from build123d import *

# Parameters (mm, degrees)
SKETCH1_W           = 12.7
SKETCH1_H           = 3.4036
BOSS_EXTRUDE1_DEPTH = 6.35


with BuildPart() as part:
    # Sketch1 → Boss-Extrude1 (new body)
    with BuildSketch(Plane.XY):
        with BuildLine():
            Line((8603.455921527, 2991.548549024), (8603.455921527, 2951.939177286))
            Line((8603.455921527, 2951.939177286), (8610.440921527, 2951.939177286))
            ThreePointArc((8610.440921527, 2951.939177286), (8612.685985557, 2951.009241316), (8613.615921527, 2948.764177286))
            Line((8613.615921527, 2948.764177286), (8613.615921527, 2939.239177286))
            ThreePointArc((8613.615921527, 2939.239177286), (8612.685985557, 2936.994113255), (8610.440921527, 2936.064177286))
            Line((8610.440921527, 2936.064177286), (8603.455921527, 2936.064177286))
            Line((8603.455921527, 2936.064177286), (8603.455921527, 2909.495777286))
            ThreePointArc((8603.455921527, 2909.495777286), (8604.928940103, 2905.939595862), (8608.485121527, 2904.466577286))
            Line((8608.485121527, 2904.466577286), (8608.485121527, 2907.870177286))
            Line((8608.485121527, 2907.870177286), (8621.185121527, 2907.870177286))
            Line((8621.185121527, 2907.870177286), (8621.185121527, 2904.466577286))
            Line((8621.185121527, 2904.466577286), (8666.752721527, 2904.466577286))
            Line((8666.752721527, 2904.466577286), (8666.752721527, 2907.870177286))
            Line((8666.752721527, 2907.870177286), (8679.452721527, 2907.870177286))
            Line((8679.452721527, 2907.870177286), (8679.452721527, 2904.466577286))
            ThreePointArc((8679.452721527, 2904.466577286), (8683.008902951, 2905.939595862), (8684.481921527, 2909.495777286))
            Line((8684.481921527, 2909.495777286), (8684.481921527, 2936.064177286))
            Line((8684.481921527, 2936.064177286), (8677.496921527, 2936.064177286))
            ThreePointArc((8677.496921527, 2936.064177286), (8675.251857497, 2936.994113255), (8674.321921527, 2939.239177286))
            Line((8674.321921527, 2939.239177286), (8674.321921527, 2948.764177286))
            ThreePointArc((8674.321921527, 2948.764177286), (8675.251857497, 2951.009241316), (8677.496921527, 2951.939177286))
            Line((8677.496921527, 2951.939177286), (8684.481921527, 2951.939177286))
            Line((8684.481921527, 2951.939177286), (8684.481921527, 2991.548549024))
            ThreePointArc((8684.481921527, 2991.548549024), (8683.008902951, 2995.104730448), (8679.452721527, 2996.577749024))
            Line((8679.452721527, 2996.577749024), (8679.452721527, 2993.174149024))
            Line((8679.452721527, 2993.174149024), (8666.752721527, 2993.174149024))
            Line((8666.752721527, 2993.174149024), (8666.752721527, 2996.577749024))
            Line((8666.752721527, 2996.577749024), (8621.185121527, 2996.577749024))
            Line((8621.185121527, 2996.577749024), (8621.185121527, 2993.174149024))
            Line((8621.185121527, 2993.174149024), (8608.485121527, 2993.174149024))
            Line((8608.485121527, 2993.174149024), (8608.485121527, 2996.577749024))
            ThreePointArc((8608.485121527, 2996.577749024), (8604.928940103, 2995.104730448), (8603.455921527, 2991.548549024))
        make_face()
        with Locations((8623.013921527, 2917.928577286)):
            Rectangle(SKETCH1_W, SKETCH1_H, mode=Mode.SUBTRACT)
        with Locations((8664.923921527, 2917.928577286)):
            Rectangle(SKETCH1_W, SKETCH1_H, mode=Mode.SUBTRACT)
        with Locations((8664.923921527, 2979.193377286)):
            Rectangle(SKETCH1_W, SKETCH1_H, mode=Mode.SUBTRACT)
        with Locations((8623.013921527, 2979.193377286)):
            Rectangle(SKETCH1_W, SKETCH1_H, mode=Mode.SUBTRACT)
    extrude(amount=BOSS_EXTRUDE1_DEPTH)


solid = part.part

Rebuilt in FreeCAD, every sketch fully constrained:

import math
import FreeCAD as App
import Part
import Sketcher

V = App.Vector
Q = App.Units.Quantity


def add_polygon(sketch, points):
    """Adds a closed chain of lines whose ends are joined by coincident constraints."""
    first, n = sketch.GeometryCount, len(points)
    for a, b in zip(points, points[1:] + points[:1]):
        sketch.addGeometry(Part.LineSegment(App.Vector(*a, 0), App.Vector(*b, 0)), False)
    for i in range(n):
        sketch.addConstraint(Sketcher.Constraint("Coincident", first + i, 2, first + (i + 1) % n, 1))

doc = App.newDocument("Part")
body = doc.addObject("PartDesign::Body", "Body")

sketch1 = body.newObject("Sketcher::SketchObject", "Sketch")
sketch1.AttachmentSupport = (doc.getObject("XY_Plane"), [""])
sketch1.MapMode = "FlatFace"
sketch1.addGeometry(Part.LineSegment(V(8603.455922, 2991.548549, 0), V(8603.455922, 2951.939177, 0)), False)
sketch1.addGeometry(Part.LineSegment(V(8603.455922, 2951.939177, 0), V(8610.440922, 2951.939177, 0)), False)
sketch1.addGeometry(Part.ArcOfCircle(Part.Circle(V(8610.440922, 2948.764177, 0), V(0, 0, 1), 3.175), math.radians(0), math.radians(90)), False)
sketch1.addGeometry(Part.LineSegment(V(8613.615922, 2948.764177, 0), V(8613.615922, 2939.239177, 0)), False)
sketch1.addGeometry(Part.ArcOfCircle(Part.Circle(V(8610.440922, 2939.239177, 0), V(0, 0, 1), 3.175), math.radians(-90), math.radians(0)), False)
sketch1.addGeometry(Part.LineSegment(V(8610.440922, 2936.064177, 0), V(8603.455922, 2936.064177, 0)), False)
sketch1.addGeometry(Part.LineSegment(V(8603.455922, 2936.064177, 0), V(8603.455922, 2909.495777, 0)), False)
sketch1.addGeometry(Part.ArcOfCircle(Part.Circle(V(8608.485122, 2909.495777, 0), V(0, 0, 1), 5.0292), math.radians(180), math.radians(270)), False)
sketch1.addGeometry(Part.LineSegment(V(8608.485122, 2904.466577, 0), V(8608.485122, 2907.870177, 0)), False)
sketch1.addGeometry(Part.LineSegment(V(8608.485122, 2907.870177, 0), V(8621.185122, 2907.870177, 0)), False)
sketch1.addGeometry(Part.LineSegment(V(8621.185122, 2907.870177, 0), V(8621.185122, 2904.466577, 0)), False)
sketch1.addGeometry(Part.LineSegment(V(8621.185122, 2904.466577, 0), V(8666.752722, 2904.466577, 0)), False)
sketch1.addGeometry(Part.LineSegment(V(8666.752722, 2904.466577, 0), V(8666.752722, 2907.870177, 0)), False)
sketch1.addGeometry(Part.LineSegment(V(8666.752722, 2907.870177, 0), V(8679.452722, 2907.870177, 0)), False)
sketch1.addGeometry(Part.LineSegment(V(8679.452722, 2907.870177, 0), V(8679.452722, 2904.466577, 0)), False)
sketch1.addGeometry(Part.ArcOfCircle(Part.Circle(V(8679.452722, 2909.495777, 0), V(0, 0, 1), 5.0292), math.radians(-90), math.radians(0)), False)
sketch1.addGeometry(Part.LineSegment(V(8684.481922, 2909.495777, 0), V(8684.481922, 2936.064177, 0)), False)
sketch1.addGeometry(Part.LineSegment(V(8684.481922, 2936.064177, 0), V(8677.496922, 2936.064177, 0)), False)
sketch1.addGeometry(Part.ArcOfCircle(Part.Circle(V(8677.496922, 2939.239177, 0), V(0, 0, 1), 3.175), math.radians(180), math.radians(270)), False)
sketch1.addGeometry(Part.LineSegment(V(8674.321922, 2939.239177, 0), V(8674.321922, 2948.764177, 0)), False)
sketch1.addGeometry(Part.ArcOfCircle(Part.Circle(V(8677.496922, 2948.764177, 0), V(0, 0, 1), 3.175), math.radians(90), math.radians(180)), False)
sketch1.addGeometry(Part.LineSegment(V(8677.496922, 2951.939177, 0), V(8684.481922, 2951.939177, 0)), False)
sketch1.addGeometry(Part.LineSegment(V(8684.481922, 2951.939177, 0), V(8684.481922, 2991.548549, 0)), False)
sketch1.addGeometry(Part.ArcOfCircle(Part.Circle(V(8679.452722, 2991.548549, 0), V(0, 0, 1), 5.0292), math.radians(0), math.radians(90)), False)
sketch1.addGeometry(Part.LineSegment(V(8679.452722, 2996.577749, 0), V(8679.452722, 2993.174149, 0)), False)
sketch1.addGeometry(Part.LineSegment(V(8679.452722, 2993.174149, 0), V(8666.752722, 2993.174149, 0)), False)
sketch1.addGeometry(Part.LineSegment(V(8666.752722, 2993.174149, 0), V(8666.752722, 2996.577749, 0)), False)
sketch1.addGeometry(Part.LineSegment(V(8666.752722, 2996.577749, 0), V(8621.185122, 2996.577749, 0)), False)
sketch1.addGeometry(Part.LineSegment(V(8621.185122, 2996.577749, 0), V(8621.185122, 2993.174149, 0)), False)
sketch1.addGeometry(Part.LineSegment(V(8621.185122, 2993.174149, 0), V(8608.485122, 2993.174149, 0)), False)
sketch1.addGeometry(Part.LineSegment(V(8608.485122, 2993.174149, 0), V(8608.485122, 2996.577749, 0)), False)
sketch1.addGeometry(Part.ArcOfCircle(Part.Circle(V(8608.485122, 2991.548549, 0), V(0, 0, 1), 5.0292), math.radians(90), math.radians(180)), False)
add_polygon(sketch1, [(8629.363922, 2916.226777), (8616.663922, 2916.226777), (8616.663922, 2919.630377), (8629.363922, 2919.630377)])
add_polygon(sketch1, [(8671.273922, 2916.226777), (8658.573922, 2916.226777), (8658.573922, 2919.630377), (8671.273922, 2919.630377)])
add_polygon(sketch1, [(8629.363922, 2977.491577), (8616.663922, 2977.491577), (8616.663922, 2980.895177), (8629.363922, 2980.895177)])
add_polygon(sketch1, [(8671.273922, 2977.491577), (8658.573922, 2977.491577), (8658.573922, 2980.895177), (8671.273922, 2980.895177)])
sketch1.addConstraint([
    Sketcher.Constraint("Coincident", 0, 2, 1, 1),
    Sketcher.Constraint("Tangent", 1, 2, 2, 2),
    Sketcher.Constraint("Tangent", 2, 1, 3, 1),
    Sketcher.Constraint("Tangent", 3, 2, 4, 2),
    Sketcher.Constraint("Tangent", 4, 1, 5, 1),
    Sketcher.Constraint("Coincident", 5, 2, 6, 1),
    Sketcher.Constraint("Tangent", 6, 2, 7, 1),
    Sketcher.Constraint("Coincident", 7, 2, 8, 1),
    Sketcher.Constraint("Coincident", 8, 2, 9, 1),
    Sketcher.Constraint("Coincident", 9, 2, 10, 1),
    Sketcher.Constraint("Coincident", 10, 2, 11, 1),
    Sketcher.Constraint("Coincident", 11, 2, 12, 1),
    Sketcher.Constraint("Coincident", 12, 2, 13, 1),
    Sketcher.Constraint("Coincident", 13, 2, 14, 1),
    Sketcher.Constraint("Coincident", 14, 2, 15, 1),
    Sketcher.Constraint("Tangent", 15, 2, 16, 1),
    Sketcher.Constraint("Coincident", 16, 2, 17, 1),
    Sketcher.Constraint("Tangent", 17, 2, 18, 2),
    Sketcher.Constraint("Tangent", 18, 1, 19, 1),
    Sketcher.Constraint("Tangent", 19, 2, 20, 2),
    Sketcher.Constraint("Tangent", 20, 1, 21, 1),
    Sketcher.Constraint("Coincident", 21, 2, 22, 1),
    Sketcher.Constraint("Tangent", 22, 2, 23, 1),
    Sketcher.Constraint("Coincident", 23, 2, 24, 1),
    Sketcher.Constraint("Coincident", 24, 2, 25, 1),
    Sketcher.Constraint("Coincident", 25, 2, 26, 1),
    Sketcher.Constraint("Coincident", 26, 2, 27, 1),
    Sketcher.Constraint("Coincident", 27, 2, 28, 1),
    Sketcher.Constraint("Coincident", 28, 2, 29, 1),
    Sketcher.Constraint("Coincident", 29, 2, 30, 1),
    Sketcher.Constraint("Coincident", 30, 2, 31, 1),
    Sketcher.Constraint("Tangent", 31, 2, 0, 1),
    Sketcher.Constraint("Vertical", 0),
    Sketcher.Constraint("Horizontal", 1),
    Sketcher.Constraint("Vertical", 3),
    Sketcher.Constraint("Horizontal", 5),
    Sketcher.Constraint("Vertical", 6),
    Sketcher.Constraint("Vertical", 8),
    Sketcher.Constraint("Horizontal", 9),
    Sketcher.Constraint("Vertical", 10),
    Sketcher.Constraint("Horizontal", 11),
    Sketcher.Constraint("Vertical", 12),
    Sketcher.Constraint("Horizontal", 13),
    Sketcher.Constraint("Vertical", 14),
    Sketcher.Constraint("Vertical", 16),
    Sketcher.Constraint("Horizontal", 17),
    Sketcher.Constraint("Vertical", 19),
    Sketcher.Constraint("Horizontal", 21),
    Sketcher.Constraint("Vertical", 22),
    Sketcher.Constraint("Vertical", 24),
    Sketcher.Constraint("Horizontal", 25),
    Sketcher.Constraint("Vertical", 26),
    Sketcher.Constraint("Horizontal", 27),
    Sketcher.Constraint("Vertical", 28),
    Sketcher.Constraint("Horizontal", 29),
    Sketcher.Constraint("Vertical", 30),
    Sketcher.Constraint("Horizontal", 32),
    Sketcher.Constraint("Vertical", 33),
    Sketcher.Constraint("Horizontal", 34),
    Sketcher.Constraint("Vertical", 35),
    Sketcher.Constraint("Horizontal", 36),
    Sketcher.Constraint("Vertical", 37),
    Sketcher.Constraint("Horizontal", 38),
    Sketcher.Constraint("Vertical", 39),
    Sketcher.Constraint("Horizontal", 40),
    Sketcher.Constraint("Vertical", 41),
    Sketcher.Constraint("Horizontal", 42),
    Sketcher.Constraint("Vertical", 43),
    Sketcher.Constraint("Horizontal", 44),
    Sketcher.Constraint("Vertical", 45),
    Sketcher.Constraint("Horizontal", 46),
    Sketcher.Constraint("Vertical", 47),
    Sketcher.Constraint("Equal", 2, 4),
    Sketcher.Constraint("Equal", 7, 15),
    Sketcher.Constraint("Equal", 4, 18),
    Sketcher.Constraint("Equal", 18, 20),
    Sketcher.Constraint("Equal", 15, 23),
    Sketcher.Constraint("Equal", 23, 31),
    Sketcher.Constraint("Horizontal", 7, 3, 15, 3),
    Sketcher.Constraint("Horizontal", 4, 3, 18, 3),
    Sketcher.Constraint("Horizontal", 2, 3, 20, 3),
    Sketcher.Constraint("Horizontal", 23, 3, 31, 3),
    Sketcher.Constraint("Horizontal", 7, 2, 10, 2),
    Sketcher.Constraint("Horizontal", 9, 2, 12, 2),
    Sketcher.Constraint("Horizontal", 23, 2, 26, 2),
    Sketcher.Constraint("Horizontal", 25, 2, 28, 2),
    Sketcher.Constraint("Horizontal", 35, 2, 36, 2),
    Sketcher.Constraint("Horizontal", 34, 2, 37, 2),
    Sketcher.Constraint("Horizontal", 43, 2, 44, 2),
    Sketcher.Constraint("Horizontal", 42, 2, 45, 2),
    Sketcher.Constraint("Vertical", 15, 3, 23, 3),
    Sketcher.Constraint("Vertical", 7, 3, 31, 3),
    Sketcher.Constraint("Vertical", 31, 3, 7, 2),
    Sketcher.Constraint("Vertical", 23, 3, 13, 2),
    Sketcher.Constraint("Vertical", 14, 2, 23, 2),
    Sketcher.Constraint("Vertical", 12, 2, 25, 2),
    Sketcher.Constraint("Vertical", 10, 2, 27, 2),
    Sketcher.Constraint("Vertical", 8, 2, 29, 2),
    Sketcher.Constraint("Vertical", 33, 2, 40, 2),
    Sketcher.Constraint("Vertical", 35, 2, 42, 2),
    Sketcher.Constraint("Vertical", 37, 2, 44, 2),
    Sketcher.Constraint("Vertical", 39, 2, 46, 2),
    Sketcher.Constraint("Equal", 9, 13),
    Sketcher.Constraint("Equal", 5, 17),
    Sketcher.Constraint("Equal", 29, 32),
    Sketcher.Constraint("Equal", 34, 36),
    Sketcher.Constraint("Equal", 14, 24),
    Sketcher.Constraint("Equal", 30, 33),
    Sketcher.Constraint("Equal", 39, 41),
    Sketcher.Constraint("DistanceX", 9, 1, 9, 2, Q("0.5 in")),
    Sketcher.Constraint("Radius", 2, Q("0.125 in")),
    Sketcher.Constraint("Radius", 7, Q("0.198 in")),
    Sketcher.Constraint("DistanceY", 4, 3, 0, 2, Q("0.5 in")),
    Sketcher.Constraint("DistanceX", 0, 2, 2, 1, Q("0.4 in")),
    Sketcher.Constraint("DistanceX", 11, 1, 11, 2, Q("1.794 in")),
    Sketcher.Constraint("DistanceY", 6, 2, 6, 1, Q("1.046 in")),
    Sketcher.Constraint("DistanceY", 8, 1, 8, 2, Q("0.134 in")),
    Sketcher.Constraint("DistanceX", 31, 2, 40, 2, Q("0.52 in")),
    Sketcher.Constraint("DistanceY", 9, 2, 32, 2, Q("0.329 in")),
    Sketcher.Constraint("DistanceX", 36, 2, 12, 2, Q("0.322 in")),
    Sketcher.Constraint("DistanceY", 0, 2, 0, 1, Q("39.609372 mm")),
    Sketcher.Constraint("DistanceX", -1, 1, 2, 3, Q("8610.440922 mm")),
    Sketcher.Constraint("DistanceY", -1, 1, 23, 3, Q("2991.548549 mm")),
    Sketcher.Constraint("DistanceY", 40, 2, 31, 3, Q("14.056972 mm")),
])
pad1 = body.newObject("PartDesign::Pad", "Pad")
pad1.Profile = sketch1
pad1.Length = Q("0.25 in")

doc.recompute()
